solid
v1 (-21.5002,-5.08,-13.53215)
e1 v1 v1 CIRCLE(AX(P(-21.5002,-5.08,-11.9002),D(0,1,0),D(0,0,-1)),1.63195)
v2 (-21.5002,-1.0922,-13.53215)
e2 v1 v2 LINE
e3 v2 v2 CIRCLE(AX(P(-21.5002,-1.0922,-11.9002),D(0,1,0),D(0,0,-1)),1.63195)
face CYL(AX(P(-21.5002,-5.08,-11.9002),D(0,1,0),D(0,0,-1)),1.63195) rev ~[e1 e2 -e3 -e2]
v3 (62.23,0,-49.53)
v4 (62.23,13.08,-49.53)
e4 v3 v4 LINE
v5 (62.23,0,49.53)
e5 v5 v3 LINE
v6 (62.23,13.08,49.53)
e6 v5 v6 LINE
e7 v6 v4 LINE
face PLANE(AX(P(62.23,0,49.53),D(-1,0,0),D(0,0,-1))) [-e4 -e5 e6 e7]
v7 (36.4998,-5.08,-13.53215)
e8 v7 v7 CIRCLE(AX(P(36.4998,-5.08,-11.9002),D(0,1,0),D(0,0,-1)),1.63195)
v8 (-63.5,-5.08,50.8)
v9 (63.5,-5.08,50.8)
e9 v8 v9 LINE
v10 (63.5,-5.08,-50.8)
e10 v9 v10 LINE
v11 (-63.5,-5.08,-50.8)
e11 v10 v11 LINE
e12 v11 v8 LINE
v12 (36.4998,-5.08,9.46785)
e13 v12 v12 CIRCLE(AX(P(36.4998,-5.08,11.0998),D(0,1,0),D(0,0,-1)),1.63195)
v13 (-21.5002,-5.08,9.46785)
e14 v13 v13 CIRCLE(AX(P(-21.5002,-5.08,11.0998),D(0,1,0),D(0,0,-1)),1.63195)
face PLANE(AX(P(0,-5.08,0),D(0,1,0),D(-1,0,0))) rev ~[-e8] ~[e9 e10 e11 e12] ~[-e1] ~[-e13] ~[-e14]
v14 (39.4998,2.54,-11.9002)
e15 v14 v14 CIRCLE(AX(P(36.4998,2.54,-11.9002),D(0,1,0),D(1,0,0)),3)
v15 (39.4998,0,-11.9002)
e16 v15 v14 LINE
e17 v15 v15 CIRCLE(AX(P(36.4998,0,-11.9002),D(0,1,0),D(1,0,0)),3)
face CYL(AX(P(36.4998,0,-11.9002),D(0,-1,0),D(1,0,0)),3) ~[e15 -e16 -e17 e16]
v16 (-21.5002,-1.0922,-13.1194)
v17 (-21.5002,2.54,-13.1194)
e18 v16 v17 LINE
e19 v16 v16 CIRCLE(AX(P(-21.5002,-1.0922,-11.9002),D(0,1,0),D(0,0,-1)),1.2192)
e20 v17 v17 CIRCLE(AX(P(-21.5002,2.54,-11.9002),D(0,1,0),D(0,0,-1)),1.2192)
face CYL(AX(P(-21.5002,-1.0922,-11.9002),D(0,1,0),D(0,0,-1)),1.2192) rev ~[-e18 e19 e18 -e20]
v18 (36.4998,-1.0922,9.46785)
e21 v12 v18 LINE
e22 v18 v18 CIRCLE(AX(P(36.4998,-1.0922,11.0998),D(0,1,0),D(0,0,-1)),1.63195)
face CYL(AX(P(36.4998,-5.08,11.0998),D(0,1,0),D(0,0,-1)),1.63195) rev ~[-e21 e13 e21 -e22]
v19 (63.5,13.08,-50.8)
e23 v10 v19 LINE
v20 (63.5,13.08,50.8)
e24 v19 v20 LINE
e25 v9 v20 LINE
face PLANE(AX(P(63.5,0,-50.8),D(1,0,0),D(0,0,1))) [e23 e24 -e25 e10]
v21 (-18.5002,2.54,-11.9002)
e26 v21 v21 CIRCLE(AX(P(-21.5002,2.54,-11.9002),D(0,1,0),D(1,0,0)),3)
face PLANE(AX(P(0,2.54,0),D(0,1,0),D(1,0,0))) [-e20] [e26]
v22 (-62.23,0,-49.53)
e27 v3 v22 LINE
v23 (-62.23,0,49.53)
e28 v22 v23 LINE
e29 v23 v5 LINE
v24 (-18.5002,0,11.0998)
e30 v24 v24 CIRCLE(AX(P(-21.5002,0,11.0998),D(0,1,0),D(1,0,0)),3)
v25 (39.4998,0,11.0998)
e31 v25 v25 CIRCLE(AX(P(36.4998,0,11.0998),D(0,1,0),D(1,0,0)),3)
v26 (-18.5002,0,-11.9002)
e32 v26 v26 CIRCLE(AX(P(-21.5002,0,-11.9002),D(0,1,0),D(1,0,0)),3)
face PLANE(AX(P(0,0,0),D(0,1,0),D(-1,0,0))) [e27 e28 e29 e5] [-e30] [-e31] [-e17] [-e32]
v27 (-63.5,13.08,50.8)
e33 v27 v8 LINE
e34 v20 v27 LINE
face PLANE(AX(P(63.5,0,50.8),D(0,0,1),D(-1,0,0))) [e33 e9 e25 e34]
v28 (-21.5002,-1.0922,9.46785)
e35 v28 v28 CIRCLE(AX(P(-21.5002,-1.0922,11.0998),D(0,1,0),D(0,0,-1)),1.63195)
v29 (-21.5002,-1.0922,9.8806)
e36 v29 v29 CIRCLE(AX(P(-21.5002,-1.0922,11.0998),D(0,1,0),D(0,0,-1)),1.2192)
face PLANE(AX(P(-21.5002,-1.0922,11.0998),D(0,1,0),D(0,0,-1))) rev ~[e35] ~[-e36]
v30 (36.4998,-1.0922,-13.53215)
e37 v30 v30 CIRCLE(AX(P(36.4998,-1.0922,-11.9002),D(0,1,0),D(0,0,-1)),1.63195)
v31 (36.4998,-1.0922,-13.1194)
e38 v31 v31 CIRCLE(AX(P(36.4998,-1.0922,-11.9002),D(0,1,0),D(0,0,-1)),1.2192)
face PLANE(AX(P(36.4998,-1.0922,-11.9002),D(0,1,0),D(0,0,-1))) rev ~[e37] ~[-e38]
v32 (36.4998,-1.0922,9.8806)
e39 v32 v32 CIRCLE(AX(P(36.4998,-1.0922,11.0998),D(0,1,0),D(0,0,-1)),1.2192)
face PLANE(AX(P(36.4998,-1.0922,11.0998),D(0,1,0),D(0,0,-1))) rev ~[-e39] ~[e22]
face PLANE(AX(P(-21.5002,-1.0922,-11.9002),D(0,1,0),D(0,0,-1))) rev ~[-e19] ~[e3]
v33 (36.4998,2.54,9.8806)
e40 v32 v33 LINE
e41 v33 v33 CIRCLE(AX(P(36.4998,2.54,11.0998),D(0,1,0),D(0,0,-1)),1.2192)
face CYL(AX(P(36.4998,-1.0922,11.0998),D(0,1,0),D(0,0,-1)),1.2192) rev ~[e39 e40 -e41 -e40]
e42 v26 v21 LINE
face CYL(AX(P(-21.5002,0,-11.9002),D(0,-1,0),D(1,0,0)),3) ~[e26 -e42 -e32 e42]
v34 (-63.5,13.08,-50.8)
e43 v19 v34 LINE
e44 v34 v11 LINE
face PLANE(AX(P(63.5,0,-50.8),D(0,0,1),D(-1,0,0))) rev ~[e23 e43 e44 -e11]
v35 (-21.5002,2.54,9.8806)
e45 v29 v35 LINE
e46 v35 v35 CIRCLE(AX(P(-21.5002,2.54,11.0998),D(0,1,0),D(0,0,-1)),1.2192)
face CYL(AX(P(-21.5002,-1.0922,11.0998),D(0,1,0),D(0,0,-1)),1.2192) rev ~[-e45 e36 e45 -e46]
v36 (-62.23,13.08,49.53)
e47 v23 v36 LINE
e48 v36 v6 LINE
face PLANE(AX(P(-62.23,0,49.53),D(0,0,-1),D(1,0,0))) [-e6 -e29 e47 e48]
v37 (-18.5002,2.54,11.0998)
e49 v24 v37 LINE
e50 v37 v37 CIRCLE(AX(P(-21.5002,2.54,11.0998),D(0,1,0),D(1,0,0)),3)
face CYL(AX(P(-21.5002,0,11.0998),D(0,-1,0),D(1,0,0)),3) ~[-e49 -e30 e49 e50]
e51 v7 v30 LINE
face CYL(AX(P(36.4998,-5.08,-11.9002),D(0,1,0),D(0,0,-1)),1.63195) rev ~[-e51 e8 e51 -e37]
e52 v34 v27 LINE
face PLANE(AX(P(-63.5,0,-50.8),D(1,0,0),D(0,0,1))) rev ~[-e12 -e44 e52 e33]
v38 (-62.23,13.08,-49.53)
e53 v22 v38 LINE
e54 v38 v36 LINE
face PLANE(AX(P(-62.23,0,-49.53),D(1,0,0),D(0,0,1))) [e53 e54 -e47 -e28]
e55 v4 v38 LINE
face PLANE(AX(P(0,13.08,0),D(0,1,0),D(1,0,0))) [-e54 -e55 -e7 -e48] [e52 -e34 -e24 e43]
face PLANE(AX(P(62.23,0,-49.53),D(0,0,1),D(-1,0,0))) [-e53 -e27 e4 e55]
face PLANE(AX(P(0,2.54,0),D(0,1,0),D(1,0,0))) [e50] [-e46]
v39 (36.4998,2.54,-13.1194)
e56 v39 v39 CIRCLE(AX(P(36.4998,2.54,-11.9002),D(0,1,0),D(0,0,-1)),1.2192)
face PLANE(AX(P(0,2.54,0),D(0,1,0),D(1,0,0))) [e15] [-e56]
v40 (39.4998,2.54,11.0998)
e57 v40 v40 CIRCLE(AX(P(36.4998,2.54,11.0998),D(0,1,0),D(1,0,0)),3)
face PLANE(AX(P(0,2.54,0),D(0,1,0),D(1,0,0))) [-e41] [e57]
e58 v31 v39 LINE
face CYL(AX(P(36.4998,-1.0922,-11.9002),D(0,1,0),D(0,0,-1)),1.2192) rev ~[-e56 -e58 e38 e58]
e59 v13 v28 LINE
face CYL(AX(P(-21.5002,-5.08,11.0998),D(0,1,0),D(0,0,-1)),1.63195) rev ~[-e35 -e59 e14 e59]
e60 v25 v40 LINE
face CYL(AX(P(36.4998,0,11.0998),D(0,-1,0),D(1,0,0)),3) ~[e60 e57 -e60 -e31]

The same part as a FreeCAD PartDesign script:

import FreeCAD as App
import Part
import Sketcher

V = App.Vector
Q = App.Units.Quantity

doc = App.newDocument("Part")
body = doc.addObject("PartDesign::Body", "Body")

sketch1 = body.newObject("Sketcher::SketchObject", "Sketch")
sketch1.AttachmentSupport = (doc.getObject("XZ_Plane"), [""])
sketch1.MapMode = "FlatFace"
sketch1.addGeometry([
    Part.LineSegment(V(-63.5, -50.8, 0), V(-63.5, 50.8, 0)),
    Part.LineSegment(V(-63.5, 50.8, 0), V(63.5, 50.8, 0)),
    Part.LineSegment(V(63.5, 50.8, 0), V(63.5, -50.8, 0)),
    Part.LineSegment(V(63.5, -50.8, 0), V(-63.5, -50.8, 0)),
], False)
sketch1.addConstraint([
    Sketcher.Constraint("Coincident", 0, 2, 1, 1),
    Sketcher.Constraint("Coincident", 1, 2, 2, 1),
    Sketcher.Constraint("Coincident", 2, 2, 3, 1),
    Sketcher.Constraint("Coincident", 3, 2, 0, 1),
    Sketcher.Constraint("Vertical", 0),
    Sketcher.Constraint("Horizontal", 1),
    Sketcher.Constraint("Vertical", 2),
    Sketcher.Constraint("Horizontal", 3),
    Sketcher.Constraint("Symmetric", 0, 2, 2, 2, -1, 1),
    Sketcher.Constraint("DistanceX", 1, 1, 1, 2, Q("5 in")),
    Sketcher.Constraint("DistanceY", 0, 1, 0, 2, Q("4 in")),
])
pad1 = body.newObject("PartDesign::Pad", "Pad")
pad1.Profile = sketch1
pad1.Length = Q("0.2 in")

sketch2 = body.newObject("Sketcher::SketchObject", "Sketch001")
sketch2.AttachmentSupport = (doc.getObject("XZ_Plane"), [""])
sketch2.MapMode = "FlatFace"
sketch2.addGeometry([
    Part.Circle(V(-21.5002, 11.0998, 0), V(0, 0, 1), 3),
    Part.Circle(V(-21.5002, -11.9002, 0), V(0, 0, 1), 3),
    Part.Circle(V(36.4998, -11.9002, 0), V(0, 0, 1), 3),
    Part.Circle(V(36.4998, 11.0998, 0), V(0, 0, 1), 3),
], False)
sketch2.addConstraint([
    Sketcher.Constraint("Equal", 0, 1),
    Sketcher.Constraint("Equal", 1, 2),
    Sketcher.Constraint("Equal", 2, 3),
    Sketcher.Constraint("Horizontal", 1, 3, 2, 3),
    Sketcher.Constraint("Horizontal", 0, 3, 3, 3),
    Sketcher.Constraint("Vertical", 0, 3, 1, 3),
    Sketcher.Constraint("Vertical", 2, 3, 3, 3),
    Sketcher.Constraint("Diameter", 0, Q("6 mm")),
    Sketcher.Constraint("DistanceY", 1, 3, 0, 3, Q("0.9055 in")),
    Sketcher.Constraint("DistanceX", 1, 3, 2, 3, Q("58 mm")),
    Sketcher.Constraint("DistanceY", -1, 1, 0, 3, Q("0.437 in")),
    Sketcher.Constraint("DistanceX", -1, 1, 2, 3, Q("1.437 in")),
])
pad2 = body.newObject("PartDesign::Pad", "Pad001")
pad2.Profile = sketch2
pad2.Length = Q("0.1 in")
pad2.Reversed = True

sketch3 = body.newObject("Sketcher::SketchObject", "Sketch002")
sketch3.AttachmentSupport = (doc.getObject("XZ_Plane"), [""])
sketch3.MapMode = "FlatFace"
sketch3.AttachmentOffset = App.Placement(V(0, 0, 0.2 * 25.4), App.Rotation())
sketch3.addGeometry([
    Part.Circle(V(-21.5002, 11.0998, 0), V(0, 0, 1), 1.2192),
    Part.Circle(V(36.4998, 11.0998, 0), V(0, 0, 1), 1.2192),
    Part.Circle(V(36.4998, -11.9002, 0), V(0, 0, 1), 1.2192),
    Part.Circle(V(-21.5002, -11.9002, 0), V(0, 0, 1), 1.2192),
], False)
sketch3.addConstraint([
    Sketcher.Constraint("Equal", 0, 1),
    Sketcher.Constraint("Equal", 1, 2),
    Sketcher.Constraint("Equal", 2, 3),
    Sketcher.Constraint("Horizontal", 0, 3, 1, 3),
    Sketcher.Constraint("Horizontal", 2, 3, 3, 3),
    Sketcher.Constraint("Vertical", 1, 3, 2, 3),
    Sketcher.Constraint("Vertical", 0, 3, 3, 3),
    Sketcher.Constraint("Diameter", 0, Q("0.096 in")),
    Sketcher.Constraint("DistanceY", -1, 1, 0, 3, Q("0.437 in")),
    Sketcher.Constraint("DistanceX", -1, 1, 1, 3, Q("1.437 in")),
    Sketcher.Constraint("DistanceY", 2, 3, -1, 1, Q("0.4685 in")),
    Sketcher.Constraint("DistanceX", 0, 3, -1, 1, Q("21.5002 mm")),
])
doc.recompute()
hole = body.newObject("PartDesign::Hole", "Hole")
hole.Profile = sketch3
hole.ThreadType = "None"
hole.Diameter = Q("0.096 in")
hole.DepthType = "ThroughAll"
hole.HoleCutType = "Counterbore"
hole.HoleCutDiameter = Q("0.1285 in")
hole.HoleCutDepth = Q("0.157 in")

sketch4 = body.newObject("Sketcher::SketchObject", "Sketch003")
sketch4.AttachmentSupport = (doc.getObject("XZ_Plane"), [""])
sketch4.MapMode = "FlatFace"
sketch4.addGeometry([
    Part.LineSegment(V(-63.5, 50.8, 0), V(63.5, 50.8, 0)),
    Part.LineSegment(V(63.5, 50.8, 0), V(63.5, -50.8, 0)),
    Part.LineSegment(V(63.5, -50.8, 0), V(-63.5, -50.8, 0)),
    Part.LineSegment(V(-63.5, -50.8, 0), V(-63.5, 50.8, 0)),
    Part.LineSegment(V(62.23, 49.53, 0), V(-62.23, 49.53, 0)),
    Part.LineSegment(V(-62.23, 49.53, 0), V(-62.23, -49.53, 0)),
    Part.LineSegment(V(-62.23, -49.53, 0), V(62.23, -49.53, 0)),
    Part.LineSegment(V(62.23, -49.53, 0), V(62.23, 49.53, 0)),
], False)
sketch4.addConstraint([
    Sketcher.Constraint("Coincident", 0, 2, 1, 1),
    Sketcher.Constraint("Coincident", 1, 2, 2, 1),
    Sketcher.Constraint("Coincident", 2, 2, 3, 1),
    Sketcher.Constraint("Coincident", 3, 2, 0, 1),
    Sketcher.Constraint("Coincident", 4, 2, 5, 1),
    Sketcher.Constraint("Coincident", 5, 2, 6, 1),
    Sketcher.Constraint("Coincident", 6, 2, 7, 1),
    Sketcher.Constraint("Coincident", 7, 2, 4, 1),
    Sketcher.Constraint("Horizontal", 0),
    Sketcher.Constraint("Vertical", 1),
    Sketcher.Constraint("Horizontal", 2),
    Sketcher.Constraint("Vertical", 3),
    Sketcher.Constraint("Horizontal", 4),
    Sketcher.Constraint("Vertical", 5),
    Sketcher.Constraint("Horizontal", 6),
    Sketcher.Constraint("Vertical", 7),
    Sketcher.Constraint("Symmetric", 0, 2, 2, 2, -1, 1),
    Sketcher.Constraint("Symmetric", 4, 2, 6, 2, -1, 1),
    Sketcher.Constraint("DistanceX", 0, 1, 0, 2, Q("5 in")),
    Sketcher.Constraint("DistanceY", 1, 2, 1, 1, Q("4 in")),
    Sketcher.Constraint("DistanceX", 3, 2, 4, 2, Q("0.05 in")),
    Sketcher.Constraint("DistanceY", 4, 2, 3, 2, Q("0.05 in")),
])
pad3 = body.newObject("PartDesign::Pad", "Pad002")
pad3.Profile = sketch4
pad3.Length = 13.08
pad3.Reversed = True

doc.recompute()
